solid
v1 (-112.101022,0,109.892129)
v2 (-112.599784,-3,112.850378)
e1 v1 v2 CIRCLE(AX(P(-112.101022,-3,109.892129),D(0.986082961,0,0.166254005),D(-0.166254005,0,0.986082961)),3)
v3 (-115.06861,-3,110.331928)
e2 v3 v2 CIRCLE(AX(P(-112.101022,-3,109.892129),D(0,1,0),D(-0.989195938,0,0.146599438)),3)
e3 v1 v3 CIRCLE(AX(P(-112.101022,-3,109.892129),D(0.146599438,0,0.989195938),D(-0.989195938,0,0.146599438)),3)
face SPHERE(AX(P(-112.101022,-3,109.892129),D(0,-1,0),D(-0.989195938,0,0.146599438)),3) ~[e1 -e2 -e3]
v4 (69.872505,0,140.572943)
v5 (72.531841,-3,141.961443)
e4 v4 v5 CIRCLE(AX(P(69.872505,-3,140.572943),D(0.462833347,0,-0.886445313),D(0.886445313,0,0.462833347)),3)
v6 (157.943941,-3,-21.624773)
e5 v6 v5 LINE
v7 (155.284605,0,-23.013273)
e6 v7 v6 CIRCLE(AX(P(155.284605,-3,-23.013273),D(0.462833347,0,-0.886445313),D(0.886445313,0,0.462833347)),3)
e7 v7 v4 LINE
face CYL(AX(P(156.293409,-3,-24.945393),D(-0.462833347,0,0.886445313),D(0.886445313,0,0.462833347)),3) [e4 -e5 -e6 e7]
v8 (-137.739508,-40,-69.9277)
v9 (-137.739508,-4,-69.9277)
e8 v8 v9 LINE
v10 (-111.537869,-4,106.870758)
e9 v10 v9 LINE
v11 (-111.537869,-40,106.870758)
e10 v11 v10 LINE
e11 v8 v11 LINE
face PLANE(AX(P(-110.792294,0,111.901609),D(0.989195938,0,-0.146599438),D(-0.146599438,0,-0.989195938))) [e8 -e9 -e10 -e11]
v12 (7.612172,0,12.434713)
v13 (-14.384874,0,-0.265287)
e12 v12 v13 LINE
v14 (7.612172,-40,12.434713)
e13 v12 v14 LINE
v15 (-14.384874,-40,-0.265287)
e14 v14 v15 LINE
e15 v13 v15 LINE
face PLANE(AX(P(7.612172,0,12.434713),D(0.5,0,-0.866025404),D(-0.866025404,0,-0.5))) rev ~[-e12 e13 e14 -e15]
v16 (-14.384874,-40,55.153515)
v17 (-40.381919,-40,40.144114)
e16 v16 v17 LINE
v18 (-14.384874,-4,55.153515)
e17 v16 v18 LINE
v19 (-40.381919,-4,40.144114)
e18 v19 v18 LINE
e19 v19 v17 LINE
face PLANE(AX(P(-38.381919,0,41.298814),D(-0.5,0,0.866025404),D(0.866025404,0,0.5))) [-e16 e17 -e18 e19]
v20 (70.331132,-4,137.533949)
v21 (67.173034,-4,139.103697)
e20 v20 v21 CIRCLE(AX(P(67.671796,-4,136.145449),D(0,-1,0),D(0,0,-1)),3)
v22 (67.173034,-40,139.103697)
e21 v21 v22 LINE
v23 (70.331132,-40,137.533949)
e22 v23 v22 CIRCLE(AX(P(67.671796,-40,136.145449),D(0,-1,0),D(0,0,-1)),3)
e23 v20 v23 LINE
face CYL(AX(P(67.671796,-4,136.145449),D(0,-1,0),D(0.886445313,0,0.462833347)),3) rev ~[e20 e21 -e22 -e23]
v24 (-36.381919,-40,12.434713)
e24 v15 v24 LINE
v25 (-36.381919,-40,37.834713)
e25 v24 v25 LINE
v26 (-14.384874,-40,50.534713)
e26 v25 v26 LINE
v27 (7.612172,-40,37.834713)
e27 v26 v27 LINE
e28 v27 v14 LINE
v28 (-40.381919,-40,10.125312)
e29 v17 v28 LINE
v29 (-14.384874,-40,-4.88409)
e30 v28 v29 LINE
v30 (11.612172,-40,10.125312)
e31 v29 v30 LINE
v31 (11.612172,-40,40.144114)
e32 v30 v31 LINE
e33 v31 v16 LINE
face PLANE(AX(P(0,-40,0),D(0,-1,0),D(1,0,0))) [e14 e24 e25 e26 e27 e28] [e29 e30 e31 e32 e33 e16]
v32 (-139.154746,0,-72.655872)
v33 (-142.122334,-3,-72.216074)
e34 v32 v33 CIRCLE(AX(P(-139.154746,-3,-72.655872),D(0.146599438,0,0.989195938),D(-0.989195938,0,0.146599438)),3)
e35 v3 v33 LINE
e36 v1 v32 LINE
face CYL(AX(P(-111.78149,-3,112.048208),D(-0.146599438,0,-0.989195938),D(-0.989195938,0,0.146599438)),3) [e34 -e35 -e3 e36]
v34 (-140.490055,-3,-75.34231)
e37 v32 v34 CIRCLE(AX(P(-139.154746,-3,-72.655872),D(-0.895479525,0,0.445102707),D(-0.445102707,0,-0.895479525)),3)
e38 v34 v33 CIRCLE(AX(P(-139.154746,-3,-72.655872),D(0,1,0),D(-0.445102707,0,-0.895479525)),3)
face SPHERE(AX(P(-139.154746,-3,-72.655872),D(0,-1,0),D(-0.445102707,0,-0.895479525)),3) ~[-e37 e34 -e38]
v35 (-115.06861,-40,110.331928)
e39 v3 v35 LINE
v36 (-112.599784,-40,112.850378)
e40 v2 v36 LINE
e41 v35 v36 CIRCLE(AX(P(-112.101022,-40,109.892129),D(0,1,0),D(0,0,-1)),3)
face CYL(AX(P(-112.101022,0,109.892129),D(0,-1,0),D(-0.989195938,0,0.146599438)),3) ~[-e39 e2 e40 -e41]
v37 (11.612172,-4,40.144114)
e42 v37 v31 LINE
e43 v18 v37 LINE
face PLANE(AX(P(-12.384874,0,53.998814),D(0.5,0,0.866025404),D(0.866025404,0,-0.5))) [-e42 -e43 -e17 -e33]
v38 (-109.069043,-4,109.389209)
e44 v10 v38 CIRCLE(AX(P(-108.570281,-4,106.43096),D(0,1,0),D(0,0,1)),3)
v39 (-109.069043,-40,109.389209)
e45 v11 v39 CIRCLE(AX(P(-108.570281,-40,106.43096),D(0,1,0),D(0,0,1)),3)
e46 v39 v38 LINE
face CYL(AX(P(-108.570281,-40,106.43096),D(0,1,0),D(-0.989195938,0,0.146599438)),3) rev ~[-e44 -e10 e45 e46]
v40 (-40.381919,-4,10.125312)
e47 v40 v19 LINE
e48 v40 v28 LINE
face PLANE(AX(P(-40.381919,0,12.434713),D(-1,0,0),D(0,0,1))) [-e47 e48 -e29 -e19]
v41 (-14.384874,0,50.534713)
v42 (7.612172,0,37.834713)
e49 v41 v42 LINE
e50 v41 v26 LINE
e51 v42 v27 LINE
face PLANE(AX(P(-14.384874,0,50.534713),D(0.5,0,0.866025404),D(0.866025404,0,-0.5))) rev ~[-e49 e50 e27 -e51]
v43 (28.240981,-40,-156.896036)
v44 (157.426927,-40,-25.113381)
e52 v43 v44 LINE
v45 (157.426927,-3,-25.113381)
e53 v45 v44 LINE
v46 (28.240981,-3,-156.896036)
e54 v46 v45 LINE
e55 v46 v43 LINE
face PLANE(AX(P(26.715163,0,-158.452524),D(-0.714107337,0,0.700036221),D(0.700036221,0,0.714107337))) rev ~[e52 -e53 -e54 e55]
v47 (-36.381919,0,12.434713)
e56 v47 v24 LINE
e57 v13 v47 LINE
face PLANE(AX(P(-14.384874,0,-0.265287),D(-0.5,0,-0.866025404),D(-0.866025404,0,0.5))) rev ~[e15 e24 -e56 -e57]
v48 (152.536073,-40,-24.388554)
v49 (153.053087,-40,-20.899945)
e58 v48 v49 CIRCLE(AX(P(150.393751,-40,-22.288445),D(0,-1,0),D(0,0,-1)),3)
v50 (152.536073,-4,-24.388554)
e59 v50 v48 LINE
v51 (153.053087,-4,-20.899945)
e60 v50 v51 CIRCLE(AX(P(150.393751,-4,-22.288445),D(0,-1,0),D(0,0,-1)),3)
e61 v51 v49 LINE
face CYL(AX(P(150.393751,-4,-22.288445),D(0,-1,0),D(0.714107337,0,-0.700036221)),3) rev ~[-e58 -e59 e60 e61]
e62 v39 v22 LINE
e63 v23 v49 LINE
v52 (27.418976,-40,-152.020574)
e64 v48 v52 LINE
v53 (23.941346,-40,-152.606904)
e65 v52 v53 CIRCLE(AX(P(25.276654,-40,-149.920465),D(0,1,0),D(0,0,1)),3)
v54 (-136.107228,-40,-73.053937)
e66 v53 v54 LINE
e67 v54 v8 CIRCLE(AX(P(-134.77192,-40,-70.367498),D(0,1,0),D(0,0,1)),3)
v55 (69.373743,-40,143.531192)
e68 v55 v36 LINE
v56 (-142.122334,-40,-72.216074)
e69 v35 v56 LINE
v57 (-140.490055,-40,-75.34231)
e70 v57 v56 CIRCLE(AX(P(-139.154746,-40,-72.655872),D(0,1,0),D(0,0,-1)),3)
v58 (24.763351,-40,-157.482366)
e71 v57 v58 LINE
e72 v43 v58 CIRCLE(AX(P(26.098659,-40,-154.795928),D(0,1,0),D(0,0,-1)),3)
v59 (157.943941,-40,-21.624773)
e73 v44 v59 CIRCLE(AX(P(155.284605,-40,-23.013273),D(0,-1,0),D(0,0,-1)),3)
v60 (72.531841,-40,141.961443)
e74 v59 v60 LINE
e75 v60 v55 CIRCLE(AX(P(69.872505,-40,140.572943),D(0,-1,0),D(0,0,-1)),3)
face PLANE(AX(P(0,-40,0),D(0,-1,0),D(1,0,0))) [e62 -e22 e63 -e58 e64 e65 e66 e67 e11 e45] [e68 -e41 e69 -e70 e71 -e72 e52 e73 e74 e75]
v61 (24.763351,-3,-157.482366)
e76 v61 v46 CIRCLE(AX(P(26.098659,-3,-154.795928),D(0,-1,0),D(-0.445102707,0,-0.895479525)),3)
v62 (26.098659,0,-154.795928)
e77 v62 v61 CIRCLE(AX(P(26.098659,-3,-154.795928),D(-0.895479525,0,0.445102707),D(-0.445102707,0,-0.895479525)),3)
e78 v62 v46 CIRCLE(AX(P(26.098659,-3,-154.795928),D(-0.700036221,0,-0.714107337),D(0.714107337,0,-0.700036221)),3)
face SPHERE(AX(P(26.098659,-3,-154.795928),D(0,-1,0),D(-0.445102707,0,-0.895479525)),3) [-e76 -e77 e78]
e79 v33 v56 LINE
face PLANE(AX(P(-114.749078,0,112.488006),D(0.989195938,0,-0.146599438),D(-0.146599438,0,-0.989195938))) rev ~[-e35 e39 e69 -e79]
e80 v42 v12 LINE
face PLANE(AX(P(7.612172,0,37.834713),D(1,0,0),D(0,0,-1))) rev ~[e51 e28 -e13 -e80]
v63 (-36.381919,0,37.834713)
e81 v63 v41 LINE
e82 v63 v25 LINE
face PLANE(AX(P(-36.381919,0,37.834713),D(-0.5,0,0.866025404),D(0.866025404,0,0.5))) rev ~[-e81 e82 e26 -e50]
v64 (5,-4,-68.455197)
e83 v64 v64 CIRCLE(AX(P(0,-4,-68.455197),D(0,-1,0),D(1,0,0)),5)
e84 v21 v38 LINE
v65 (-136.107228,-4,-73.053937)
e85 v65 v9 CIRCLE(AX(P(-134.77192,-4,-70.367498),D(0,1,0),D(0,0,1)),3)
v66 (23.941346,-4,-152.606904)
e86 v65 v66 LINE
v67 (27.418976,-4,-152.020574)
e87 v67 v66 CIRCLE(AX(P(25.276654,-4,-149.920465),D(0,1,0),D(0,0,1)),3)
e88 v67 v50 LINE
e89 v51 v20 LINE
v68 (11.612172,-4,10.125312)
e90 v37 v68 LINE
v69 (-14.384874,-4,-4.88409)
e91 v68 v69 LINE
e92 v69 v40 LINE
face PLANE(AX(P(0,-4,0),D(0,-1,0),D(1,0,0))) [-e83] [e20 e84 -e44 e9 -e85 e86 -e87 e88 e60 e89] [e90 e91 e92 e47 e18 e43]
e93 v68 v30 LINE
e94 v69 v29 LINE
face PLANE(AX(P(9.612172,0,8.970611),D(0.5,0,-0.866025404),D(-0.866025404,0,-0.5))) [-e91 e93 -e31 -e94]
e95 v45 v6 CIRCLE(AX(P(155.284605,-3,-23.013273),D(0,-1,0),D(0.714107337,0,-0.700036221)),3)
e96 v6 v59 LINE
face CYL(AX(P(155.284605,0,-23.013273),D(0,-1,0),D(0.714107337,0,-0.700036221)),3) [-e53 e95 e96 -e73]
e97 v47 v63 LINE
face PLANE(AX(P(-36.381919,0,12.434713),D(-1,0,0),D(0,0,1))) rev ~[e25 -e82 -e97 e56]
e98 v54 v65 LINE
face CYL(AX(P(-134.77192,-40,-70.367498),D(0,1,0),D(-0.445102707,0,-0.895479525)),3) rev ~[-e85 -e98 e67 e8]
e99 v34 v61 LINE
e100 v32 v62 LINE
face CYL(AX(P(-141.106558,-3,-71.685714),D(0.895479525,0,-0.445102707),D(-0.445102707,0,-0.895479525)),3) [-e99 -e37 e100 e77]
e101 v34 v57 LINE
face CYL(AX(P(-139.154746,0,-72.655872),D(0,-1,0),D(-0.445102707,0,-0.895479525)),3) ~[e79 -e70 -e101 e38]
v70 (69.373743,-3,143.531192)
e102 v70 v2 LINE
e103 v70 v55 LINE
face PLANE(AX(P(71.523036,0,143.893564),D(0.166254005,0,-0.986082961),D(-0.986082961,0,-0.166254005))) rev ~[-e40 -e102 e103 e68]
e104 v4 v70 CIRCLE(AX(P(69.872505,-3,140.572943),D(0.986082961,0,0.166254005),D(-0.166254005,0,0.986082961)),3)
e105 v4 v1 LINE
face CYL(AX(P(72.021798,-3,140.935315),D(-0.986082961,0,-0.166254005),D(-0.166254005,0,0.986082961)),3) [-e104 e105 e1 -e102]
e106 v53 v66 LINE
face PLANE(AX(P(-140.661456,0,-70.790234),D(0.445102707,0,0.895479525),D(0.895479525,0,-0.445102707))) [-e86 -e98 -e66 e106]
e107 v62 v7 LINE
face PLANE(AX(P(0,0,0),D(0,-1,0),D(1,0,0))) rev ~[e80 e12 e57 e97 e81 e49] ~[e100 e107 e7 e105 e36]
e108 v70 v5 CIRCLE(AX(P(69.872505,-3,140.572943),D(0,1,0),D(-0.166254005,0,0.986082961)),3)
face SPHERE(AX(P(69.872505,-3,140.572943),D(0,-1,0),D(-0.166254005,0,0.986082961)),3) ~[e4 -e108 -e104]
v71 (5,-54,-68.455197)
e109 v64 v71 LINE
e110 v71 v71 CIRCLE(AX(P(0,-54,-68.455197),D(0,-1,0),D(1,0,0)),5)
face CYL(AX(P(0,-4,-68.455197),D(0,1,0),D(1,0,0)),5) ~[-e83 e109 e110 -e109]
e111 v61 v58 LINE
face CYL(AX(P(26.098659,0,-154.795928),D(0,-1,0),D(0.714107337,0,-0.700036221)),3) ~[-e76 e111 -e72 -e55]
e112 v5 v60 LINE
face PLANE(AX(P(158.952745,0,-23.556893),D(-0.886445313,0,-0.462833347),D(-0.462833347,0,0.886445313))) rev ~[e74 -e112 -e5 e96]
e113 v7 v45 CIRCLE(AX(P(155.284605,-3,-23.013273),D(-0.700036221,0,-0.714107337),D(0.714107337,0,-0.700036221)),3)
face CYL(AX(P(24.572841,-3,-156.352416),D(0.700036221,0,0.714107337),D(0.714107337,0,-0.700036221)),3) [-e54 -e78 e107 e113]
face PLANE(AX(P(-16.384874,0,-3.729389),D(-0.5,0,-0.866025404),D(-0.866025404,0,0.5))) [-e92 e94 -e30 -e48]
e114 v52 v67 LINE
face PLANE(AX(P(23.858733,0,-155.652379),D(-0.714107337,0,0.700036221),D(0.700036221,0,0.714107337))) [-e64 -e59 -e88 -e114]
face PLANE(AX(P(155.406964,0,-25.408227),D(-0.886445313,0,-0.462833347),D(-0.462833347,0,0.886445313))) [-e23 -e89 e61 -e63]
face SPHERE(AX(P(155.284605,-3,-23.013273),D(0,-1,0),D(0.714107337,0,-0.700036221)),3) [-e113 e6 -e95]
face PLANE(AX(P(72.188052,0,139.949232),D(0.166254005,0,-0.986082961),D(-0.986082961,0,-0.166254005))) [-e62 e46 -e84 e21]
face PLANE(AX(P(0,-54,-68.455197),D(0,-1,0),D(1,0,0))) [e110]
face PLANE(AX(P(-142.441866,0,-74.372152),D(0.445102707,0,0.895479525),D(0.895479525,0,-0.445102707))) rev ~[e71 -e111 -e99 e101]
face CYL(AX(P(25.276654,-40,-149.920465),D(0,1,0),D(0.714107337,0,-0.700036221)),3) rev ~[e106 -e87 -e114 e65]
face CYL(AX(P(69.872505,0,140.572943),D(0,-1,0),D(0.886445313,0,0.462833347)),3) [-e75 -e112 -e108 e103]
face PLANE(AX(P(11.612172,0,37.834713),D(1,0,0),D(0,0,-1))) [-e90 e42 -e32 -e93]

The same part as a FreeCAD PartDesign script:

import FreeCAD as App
import Part
import Sketcher
from FreeCAD import Vector
Q = App.Units.Quantity


def edges_at(feature, points):
    """Names of the edges that pass closest to the given points."""
    edges = feature.Shape.Edges
    near = lambda p: min(range(len(edges)), key=lambda i: edges[i].distToShape(Part.Vertex(*p))[0])
    return sorted({f"Edge{near(p) + 1}" for p in points})


def faces_at(feature, points):
    """Names of the faces that lie closest to the given points."""
    faces = feature.Shape.Faces
    near = lambda p: min(range(len(faces)), key=lambda i: faces[i].distToShape(Part.Vertex(*p))[0])
    return sorted({f"Face{near(p) + 1}" for p in points})


def add_polygon(sketch, points):
    """Adds a closed chain of lines whose ends are joined by coincident constraints."""
    first, n = sketch.GeometryCount, len(points)
    for a, b in zip(points, points[1:] + points[:1]):
        sketch.addGeometry(Part.LineSegment(App.Vector(*a, 0), App.Vector(*b, 0)), False)
    for i in range(n):
        sketch.addConstraint(Sketcher.Constraint("Coincident", first + i, 2, first + (i + 1) % n, 1))

doc = App.newDocument("Part")
body = doc.addObject("PartDesign::Body", "Body")

# Sketch on XZ plane
sketch1 = body.newObject("Sketcher::SketchObject", "Sketch")
sketch1.AttachmentSupport = (doc.getObject("XZ_Plane"), [""])
sketch1.MapMode = "FlatFace"
add_polygon(sketch1, [(27, -158), (159, -24), (72, 144), (-115, 112), (-142, -74)])  # lines 0-4
add_polygon(sketch1, [(-36, 38), (-14, 51), (8, 38), (8, 12), (-14, 0), (-36, 12)])  # lines 5-10
sketch1.addConstraint([
    Sketcher.Constraint("Vertical", 7),
    Sketcher.Constraint("Vertical", 10),
    Sketcher.Constraint("Parallel", 5, 8),
    Sketcher.Constraint("Parallel", 6, 9),
    Sketcher.Constraint("Horizontal", 7, 2, 9, 2),
    Sketcher.Constraint("Horizontal", 6, 2, 10, 2),
    Sketcher.Constraint("Vertical", 5, 2, 8, 2),
    Sketcher.Constraint("Equal", 0, 1),
    Sketcher.Constraint("Equal", 1, 2),
    Sketcher.Constraint("Equal", 2, 3),
    Sketcher.Constraint("Equal", 3, 4),
    Sketcher.Constraint("Angle", 5, Q("30 deg")),
    Sketcher.Constraint("DistanceY", 7, 2, 7, 1, Q("25.4 mm")),
    Sketcher.Constraint("Distance", 5, Q("25.4 mm")),
    Sketcher.Constraint("DistanceY", 0, 2, 2, 2, Q("136.0449 mm")),
    Sketcher.Constraint("DistanceX", -1, 1, 6, 2, Q("7.612172 mm")),
    Sketcher.Constraint("DistanceX", 1, 2, 0, 2, Q("87.429709 mm")),
    Sketcher.Constraint("DistanceX", 3, 2, 2, 2, Q("27.692789 mm")),
    Sketcher.Constraint("DistanceY", 3, 2, 2, 2, Q("186.860159 mm")),
    Sketcher.Constraint("DistanceX", 5, 2, 1, 2, Q("85.90791 mm")),
    Sketcher.Constraint("DistanceY", 5, 2, 1, 2, Q("93.358851 mm")),
    Sketcher.Constraint("DistanceY", 0, 2, -1, 1, Q("23.556893 mm")),
])
pad1 = body.newObject("PartDesign::Pad", "Pad")
pad1.Profile = sketch1
pad1.Length = 40
doc.recompute()

thickness = body.newObject("PartDesign::Thickness", "Thickness")
thickness.Base = (pad1, faces_at(pad1, [(8.255, -40, -7.279)]))
thickness.Value = 4
thickness.Reversed = True
thickness.Join = "Intersection"
doc.recompute()

fillet = body.newObject("PartDesign::Fillet", "Fillet")
fillet.Base = (thickness, edges_at(thickness, [
    (-57.863, 0, -116.412),
    (92.834, 0, -91.005),
    (-128.595, 0, 19.058),
    (-21.613, 0, 128.191),
    (115.238, 0, 60.168),
    (71.523, -20, 143.894),
    (-114.749, -20, 112.488),
    (-142.442, -20, -74.372),
    (26.715, -20, -158.453),
    (158.953, -20, -23.557),
    (69.322, -22, 139.466),
    (-111.218, -22, 109.027),
    (-138.059, -22, -72.084),
    (154.062, -22, -22.832),
    (25.893, -22, -153.577),
]))
fillet.Radius = 3

# Sketch on XZ plane
sketch2 = body.newObject("Sketcher::SketchObject", "Sketch001")
sketch2.AttachmentSupport = (doc.getObject("XZ_Plane"), [""])
sketch2.MapMode = "FlatFace"
sketch2.AttachmentOffset = App.Placement(Vector(0, 0, 4), App.Rotation())
sketch2.addGeometry(Part.Circle(Vector(0, -68, 0), Vector(0, 0, 1), 5), False)
sketch2.addConstraint([
    Sketcher.Constraint("PointOnObject", 0, 3, -2),
    Sketcher.Constraint("Diameter", 0, Q("10 mm")),
    Sketcher.Constraint("DistanceY", 0, 3, -1, 1, Q("68.455197 mm")),
])
pad2 = body.newObject("PartDesign::Pad", "Pad001")
pad2.Profile = sketch2
pad2.Length = 50

doc.recompute()
